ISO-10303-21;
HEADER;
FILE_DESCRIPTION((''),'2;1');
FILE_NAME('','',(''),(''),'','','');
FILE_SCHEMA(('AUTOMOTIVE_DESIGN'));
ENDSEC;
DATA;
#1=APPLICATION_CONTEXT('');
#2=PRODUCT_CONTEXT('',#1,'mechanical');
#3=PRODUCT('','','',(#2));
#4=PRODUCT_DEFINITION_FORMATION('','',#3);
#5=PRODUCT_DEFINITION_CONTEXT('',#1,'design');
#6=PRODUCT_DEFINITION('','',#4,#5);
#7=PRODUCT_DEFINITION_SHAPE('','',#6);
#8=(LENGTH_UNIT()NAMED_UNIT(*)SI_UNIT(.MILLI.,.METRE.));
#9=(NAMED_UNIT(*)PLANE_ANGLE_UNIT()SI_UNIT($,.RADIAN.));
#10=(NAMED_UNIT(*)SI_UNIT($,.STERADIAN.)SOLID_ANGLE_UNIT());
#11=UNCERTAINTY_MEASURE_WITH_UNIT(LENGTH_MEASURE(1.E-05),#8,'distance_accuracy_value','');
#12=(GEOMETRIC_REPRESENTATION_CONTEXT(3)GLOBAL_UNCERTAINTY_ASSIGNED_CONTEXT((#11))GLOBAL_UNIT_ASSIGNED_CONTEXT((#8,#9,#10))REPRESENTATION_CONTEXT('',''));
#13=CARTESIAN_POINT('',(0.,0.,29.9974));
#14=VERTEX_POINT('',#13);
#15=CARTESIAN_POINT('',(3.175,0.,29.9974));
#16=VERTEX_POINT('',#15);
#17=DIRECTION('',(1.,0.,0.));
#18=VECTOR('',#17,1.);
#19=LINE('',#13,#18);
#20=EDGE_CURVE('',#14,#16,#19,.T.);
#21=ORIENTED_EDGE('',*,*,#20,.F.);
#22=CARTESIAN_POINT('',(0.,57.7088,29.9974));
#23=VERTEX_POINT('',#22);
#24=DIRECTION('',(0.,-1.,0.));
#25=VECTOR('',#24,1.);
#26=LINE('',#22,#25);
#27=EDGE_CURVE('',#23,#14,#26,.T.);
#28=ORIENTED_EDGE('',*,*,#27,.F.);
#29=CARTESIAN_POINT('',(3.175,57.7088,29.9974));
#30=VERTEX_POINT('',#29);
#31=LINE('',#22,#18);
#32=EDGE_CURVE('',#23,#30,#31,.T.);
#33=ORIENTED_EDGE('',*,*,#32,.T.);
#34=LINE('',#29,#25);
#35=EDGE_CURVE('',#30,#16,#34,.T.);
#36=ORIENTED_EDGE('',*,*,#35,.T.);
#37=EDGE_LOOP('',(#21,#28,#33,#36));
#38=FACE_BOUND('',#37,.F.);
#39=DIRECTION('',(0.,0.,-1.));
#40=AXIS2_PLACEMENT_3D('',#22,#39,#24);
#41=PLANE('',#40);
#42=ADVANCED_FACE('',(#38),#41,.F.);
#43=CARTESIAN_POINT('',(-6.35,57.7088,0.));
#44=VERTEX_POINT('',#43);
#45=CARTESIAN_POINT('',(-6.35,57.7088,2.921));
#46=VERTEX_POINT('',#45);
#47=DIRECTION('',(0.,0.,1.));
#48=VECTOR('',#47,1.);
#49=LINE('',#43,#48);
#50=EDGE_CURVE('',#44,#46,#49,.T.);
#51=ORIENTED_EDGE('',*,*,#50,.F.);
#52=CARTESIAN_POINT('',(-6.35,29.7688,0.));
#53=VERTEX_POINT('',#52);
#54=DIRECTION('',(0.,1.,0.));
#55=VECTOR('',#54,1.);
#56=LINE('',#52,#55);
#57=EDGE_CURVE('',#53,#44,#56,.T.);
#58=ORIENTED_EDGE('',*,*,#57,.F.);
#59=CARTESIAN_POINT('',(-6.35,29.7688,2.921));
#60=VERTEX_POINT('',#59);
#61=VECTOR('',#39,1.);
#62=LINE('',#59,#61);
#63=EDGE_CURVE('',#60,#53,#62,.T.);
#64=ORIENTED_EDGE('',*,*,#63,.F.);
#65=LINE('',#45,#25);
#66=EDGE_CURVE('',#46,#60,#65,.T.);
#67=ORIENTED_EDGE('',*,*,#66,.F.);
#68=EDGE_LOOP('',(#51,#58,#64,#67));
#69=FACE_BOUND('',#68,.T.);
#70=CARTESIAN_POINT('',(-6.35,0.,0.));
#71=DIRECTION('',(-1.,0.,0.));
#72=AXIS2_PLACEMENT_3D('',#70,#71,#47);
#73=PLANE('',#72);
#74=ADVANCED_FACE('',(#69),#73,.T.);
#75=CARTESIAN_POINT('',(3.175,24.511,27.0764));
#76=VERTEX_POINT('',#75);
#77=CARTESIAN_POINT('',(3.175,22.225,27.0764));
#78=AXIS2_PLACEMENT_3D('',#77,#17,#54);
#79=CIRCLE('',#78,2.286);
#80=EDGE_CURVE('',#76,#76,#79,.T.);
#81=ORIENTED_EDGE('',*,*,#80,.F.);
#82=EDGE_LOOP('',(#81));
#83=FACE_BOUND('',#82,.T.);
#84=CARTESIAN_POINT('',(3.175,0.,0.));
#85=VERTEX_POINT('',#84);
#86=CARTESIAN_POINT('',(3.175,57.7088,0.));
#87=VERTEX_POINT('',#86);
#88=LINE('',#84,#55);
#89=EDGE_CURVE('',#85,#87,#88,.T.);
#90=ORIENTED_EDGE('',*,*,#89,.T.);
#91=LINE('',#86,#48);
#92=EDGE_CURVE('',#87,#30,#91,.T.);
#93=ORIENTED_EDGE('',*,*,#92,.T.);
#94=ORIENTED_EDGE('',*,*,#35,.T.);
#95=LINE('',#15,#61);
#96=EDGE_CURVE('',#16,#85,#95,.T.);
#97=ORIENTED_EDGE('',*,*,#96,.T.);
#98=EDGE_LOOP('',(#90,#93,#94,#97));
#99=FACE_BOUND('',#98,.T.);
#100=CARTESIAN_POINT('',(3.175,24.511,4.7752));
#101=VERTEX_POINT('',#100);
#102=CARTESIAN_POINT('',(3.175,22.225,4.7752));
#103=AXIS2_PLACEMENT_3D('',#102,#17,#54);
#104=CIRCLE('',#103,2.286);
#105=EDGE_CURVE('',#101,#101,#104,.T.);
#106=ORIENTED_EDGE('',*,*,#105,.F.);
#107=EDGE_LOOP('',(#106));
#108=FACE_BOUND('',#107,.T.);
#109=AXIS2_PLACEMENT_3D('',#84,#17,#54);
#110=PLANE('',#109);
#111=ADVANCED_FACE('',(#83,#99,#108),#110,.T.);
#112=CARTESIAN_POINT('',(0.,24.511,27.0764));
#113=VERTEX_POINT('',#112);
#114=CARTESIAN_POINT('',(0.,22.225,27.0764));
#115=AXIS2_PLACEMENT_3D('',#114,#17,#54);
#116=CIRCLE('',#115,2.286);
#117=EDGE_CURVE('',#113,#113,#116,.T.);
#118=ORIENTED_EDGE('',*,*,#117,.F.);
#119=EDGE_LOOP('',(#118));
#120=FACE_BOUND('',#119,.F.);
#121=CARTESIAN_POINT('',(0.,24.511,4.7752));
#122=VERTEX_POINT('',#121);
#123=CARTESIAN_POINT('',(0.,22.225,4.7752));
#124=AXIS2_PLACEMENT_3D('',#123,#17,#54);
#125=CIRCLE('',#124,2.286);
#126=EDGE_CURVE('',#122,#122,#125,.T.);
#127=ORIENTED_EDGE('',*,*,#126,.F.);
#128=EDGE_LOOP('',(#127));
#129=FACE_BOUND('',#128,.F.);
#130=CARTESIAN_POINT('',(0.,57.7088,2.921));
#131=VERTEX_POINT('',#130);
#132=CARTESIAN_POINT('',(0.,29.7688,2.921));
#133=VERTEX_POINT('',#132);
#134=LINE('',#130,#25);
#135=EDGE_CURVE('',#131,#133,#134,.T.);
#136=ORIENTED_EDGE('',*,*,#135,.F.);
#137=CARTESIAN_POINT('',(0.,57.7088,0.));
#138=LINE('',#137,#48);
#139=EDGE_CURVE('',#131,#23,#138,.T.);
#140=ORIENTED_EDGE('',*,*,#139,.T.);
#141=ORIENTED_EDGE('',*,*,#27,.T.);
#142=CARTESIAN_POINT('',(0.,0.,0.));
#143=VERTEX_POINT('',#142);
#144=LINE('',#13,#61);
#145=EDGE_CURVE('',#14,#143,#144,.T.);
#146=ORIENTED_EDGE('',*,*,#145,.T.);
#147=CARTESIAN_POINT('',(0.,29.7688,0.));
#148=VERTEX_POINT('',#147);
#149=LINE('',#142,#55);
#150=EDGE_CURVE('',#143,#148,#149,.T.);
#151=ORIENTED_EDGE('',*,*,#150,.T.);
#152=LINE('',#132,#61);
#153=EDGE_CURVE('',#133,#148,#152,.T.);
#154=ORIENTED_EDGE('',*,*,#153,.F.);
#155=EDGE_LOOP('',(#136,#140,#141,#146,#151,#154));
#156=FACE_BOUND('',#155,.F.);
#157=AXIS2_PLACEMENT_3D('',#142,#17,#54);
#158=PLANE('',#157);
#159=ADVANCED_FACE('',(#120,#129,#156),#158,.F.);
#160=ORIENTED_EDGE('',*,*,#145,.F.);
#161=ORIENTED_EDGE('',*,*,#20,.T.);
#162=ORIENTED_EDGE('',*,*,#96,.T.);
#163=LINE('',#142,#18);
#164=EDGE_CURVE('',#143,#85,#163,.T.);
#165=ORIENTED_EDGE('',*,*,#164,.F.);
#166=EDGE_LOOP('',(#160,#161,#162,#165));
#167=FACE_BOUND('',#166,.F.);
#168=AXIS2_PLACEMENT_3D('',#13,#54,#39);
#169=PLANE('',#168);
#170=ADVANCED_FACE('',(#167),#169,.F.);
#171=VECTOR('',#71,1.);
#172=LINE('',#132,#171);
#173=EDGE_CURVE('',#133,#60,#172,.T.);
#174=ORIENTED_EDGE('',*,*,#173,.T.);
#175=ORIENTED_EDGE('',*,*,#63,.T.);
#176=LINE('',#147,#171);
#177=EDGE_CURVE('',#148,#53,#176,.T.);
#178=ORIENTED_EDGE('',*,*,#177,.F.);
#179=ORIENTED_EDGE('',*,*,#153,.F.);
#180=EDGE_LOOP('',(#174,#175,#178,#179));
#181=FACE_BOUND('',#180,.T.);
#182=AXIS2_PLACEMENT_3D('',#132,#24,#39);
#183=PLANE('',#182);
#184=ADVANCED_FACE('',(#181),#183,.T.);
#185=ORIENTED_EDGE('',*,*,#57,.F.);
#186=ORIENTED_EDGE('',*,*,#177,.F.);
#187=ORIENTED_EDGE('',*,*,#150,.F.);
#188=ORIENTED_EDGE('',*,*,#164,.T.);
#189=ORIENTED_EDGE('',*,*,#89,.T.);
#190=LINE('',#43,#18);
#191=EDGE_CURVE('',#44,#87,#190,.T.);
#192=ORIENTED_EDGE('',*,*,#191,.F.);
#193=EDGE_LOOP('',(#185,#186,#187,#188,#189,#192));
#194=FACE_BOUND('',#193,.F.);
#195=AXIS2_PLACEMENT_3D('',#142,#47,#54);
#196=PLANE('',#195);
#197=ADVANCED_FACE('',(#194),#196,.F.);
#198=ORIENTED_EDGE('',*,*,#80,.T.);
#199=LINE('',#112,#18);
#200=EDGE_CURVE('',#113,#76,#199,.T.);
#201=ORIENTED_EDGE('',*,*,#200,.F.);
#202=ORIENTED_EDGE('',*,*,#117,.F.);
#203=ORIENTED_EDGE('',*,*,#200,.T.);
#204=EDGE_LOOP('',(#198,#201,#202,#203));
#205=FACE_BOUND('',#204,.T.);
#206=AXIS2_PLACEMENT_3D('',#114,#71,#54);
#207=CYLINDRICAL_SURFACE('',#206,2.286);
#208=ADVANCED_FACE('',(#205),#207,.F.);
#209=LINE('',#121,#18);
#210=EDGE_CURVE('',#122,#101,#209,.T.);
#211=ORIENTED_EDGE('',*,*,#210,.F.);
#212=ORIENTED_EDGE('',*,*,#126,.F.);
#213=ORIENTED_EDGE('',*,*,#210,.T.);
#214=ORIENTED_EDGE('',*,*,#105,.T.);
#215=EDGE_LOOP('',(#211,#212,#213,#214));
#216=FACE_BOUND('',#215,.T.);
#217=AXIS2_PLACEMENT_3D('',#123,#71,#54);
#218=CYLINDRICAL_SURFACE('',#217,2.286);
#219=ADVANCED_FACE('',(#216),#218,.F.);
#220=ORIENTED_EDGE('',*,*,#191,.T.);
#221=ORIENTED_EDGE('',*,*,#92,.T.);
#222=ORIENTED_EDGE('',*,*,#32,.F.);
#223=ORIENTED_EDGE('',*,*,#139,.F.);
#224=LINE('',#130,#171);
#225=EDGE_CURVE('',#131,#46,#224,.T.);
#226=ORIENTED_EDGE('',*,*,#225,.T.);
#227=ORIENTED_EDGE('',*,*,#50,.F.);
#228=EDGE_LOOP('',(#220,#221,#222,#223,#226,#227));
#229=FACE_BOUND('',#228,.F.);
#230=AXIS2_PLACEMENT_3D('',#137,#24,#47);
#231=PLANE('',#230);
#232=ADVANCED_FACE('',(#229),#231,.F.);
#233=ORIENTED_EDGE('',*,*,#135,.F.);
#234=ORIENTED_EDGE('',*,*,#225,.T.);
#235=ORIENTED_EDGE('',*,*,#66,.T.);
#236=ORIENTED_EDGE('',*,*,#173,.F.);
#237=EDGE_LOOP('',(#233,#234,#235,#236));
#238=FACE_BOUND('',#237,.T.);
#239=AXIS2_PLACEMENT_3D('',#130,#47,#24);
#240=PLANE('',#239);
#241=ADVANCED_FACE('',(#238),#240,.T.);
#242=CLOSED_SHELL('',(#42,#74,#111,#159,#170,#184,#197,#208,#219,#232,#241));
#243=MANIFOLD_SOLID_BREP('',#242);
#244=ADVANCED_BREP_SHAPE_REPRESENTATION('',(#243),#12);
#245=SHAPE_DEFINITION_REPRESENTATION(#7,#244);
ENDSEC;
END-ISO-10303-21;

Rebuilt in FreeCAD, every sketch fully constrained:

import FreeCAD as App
import Part
import Sketcher
Q = App.Units.Quantity

doc = App.newDocument("Part")
params = doc.addObject("Spreadsheet::Sheet", "Params")
for row, (alias, value) in enumerate([
    ("sketch1_diameter", "0.18 in"),
    ("sketch1_width", "2.272 in"),
    ("sketch1_height", "1.181 in"),
    ("pad1_length", "0.125 in"),
    ("sketch2_width", "1.1 in"),
    ("sketch2_height", "0.115 in"),
    ("pad2_length", "0.25 in"),
], start=1):
    params.set(f"A{row}", alias)
    params.set(f"B{row}", "=" + value)
    params.setAlias(f"B{row}", alias)

body = doc.addObject("PartDesign::Body", "Body")

# Sketch on YZ plane
sketch1 = body.newObject("Sketcher::SketchObject", "Sketch")
sketch1.AttachmentSupport = (doc.getObject("YZ_Plane"), [""])
sketch1.MapMode = "FlatFace"
sketch1.addGeometry([
    Part.LineSegment(App.Vector(0, 30, 0), App.Vector(0, 0, 0)),  # 0
    Part.LineSegment(App.Vector(0, 0, 0), App.Vector(57.7, 0, 0)),  # 1
    Part.LineSegment(App.Vector(57.7, 0, 0), App.Vector(57.7, 30, 0)),  # 2
    Part.LineSegment(App.Vector(57.7, 30, 0), App.Vector(0, 30, 0)),  # 3
    Part.Circle(App.Vector(22.2, 4.8, 0), App.Vector(0, 0, 1), 2.3),  # 4
    Part.Circle(App.Vector(22.2, 27.1, 0), App.Vector(0, 0, 1), 2.3),  # 5
], False)
sketch1.addConstraint([
    Sketcher.Constraint("Coincident", 0, 2, 1, 1),
    Sketcher.Constraint("Coincident", 1, 2, 2, 1),
    Sketcher.Constraint("Coincident", 2, 2, 3, 1),
    Sketcher.Constraint("Coincident", 3, 2, 0, 1),
    Sketcher.Constraint("Vertical", 0),
    Sketcher.Constraint("Horizontal", 1),
    Sketcher.Constraint("Vertical", 2),
    Sketcher.Constraint("Horizontal", 3),
    Sketcher.Constraint("Coincident", 0, 2, -1, 1),
    Sketcher.Constraint("Equal", 4, 5),
    Sketcher.Constraint("Vertical", 4, 3, 5, 3),
    Sketcher.Constraint("Diameter", 4, Q("0.18 in")),
    Sketcher.Constraint("DistanceX", 1, 1, 1, 2, Q("2.272 in")),
    Sketcher.Constraint("DistanceY", 0, 2, 0, 1, Q("1.181 in")),
    Sketcher.Constraint("DistanceX", -1, 1, 4, 3, Q("0.875 in")),
    Sketcher.Constraint("DistanceY", 5, 3, 2, 2, Q("0.115 in")),
    Sketcher.Constraint("DistanceY", 4, 3, 2, 2, Q("0.993 in")),
])
sketch1.setExpression("Constraints[11]", "Params.sketch1_diameter")
sketch1.setExpression("Constraints[12]", "Params.sketch1_width")
sketch1.setExpression("Constraints[13]", "Params.sketch1_height")
pad1 = body.newObject("PartDesign::Pad", "Pad")
pad1.Profile = sketch1
pad1.setExpression("Length", "Params.pad1_length")

# Sketch on YZ plane
sketch2 = body.newObject("Sketcher::SketchObject", "Sketch001")
sketch2.AttachmentSupport = (doc.getObject("YZ_Plane"), [""])
sketch2.MapMode = "FlatFace"
sketch2.addGeometry([
    Part.LineSegment(App.Vector(57.7, 2.9, 0), App.Vector(57.7, 0, 0)),
    Part.LineSegment(App.Vector(57.7, 0, 0), App.Vector(29.8, 0, 0)),
    Part.LineSegment(App.Vector(29.8, 0, 0), App.Vector(29.8, 2.9, 0)),
    Part.LineSegment(App.Vector(29.8, 2.9, 0), App.Vector(57.7, 2.9, 0)),
], False)
sketch2.addConstraint([
    Sketcher.Constraint("Coincident", 0, 2, 1, 1),
    Sketcher.Constraint("Coincident", 1, 2, 2, 1),
    Sketcher.Constraint("Coincident", 2, 2, 3, 1),
    Sketcher.Constraint("Coincident", 3, 2, 0, 1),
    Sketcher.Constraint("Vertical", 0),
    Sketcher.Constraint("Horizontal", 1),
    Sketcher.Constraint("Vertical", 2),
    Sketcher.Constraint("Horizontal", 3),
    Sketcher.Constraint("PointOnObject", 0, 2, -1),
    Sketcher.Constraint("DistanceX", 1, 2, 1, 1, Q("1.1 in")),
    Sketcher.Constraint("DistanceY", 0, 2, 0, 1, Q("0.115 in")),
    Sketcher.Constraint("DistanceX", -1, 1, 0, 2, Q("2.272 in")),
])
sketch2.setExpression("Constraints[9]", "Params.sketch2_width")
sketch2.setExpression("Constraints[10]", "Params.sketch2_height")
pad2 = body.newObject("PartDesign::Pad", "Pad001")
pad2.Profile = sketch2
pad2.setExpression("Length", "Params.pad2_length")
pad2.Reversed = True

doc.recompute()
